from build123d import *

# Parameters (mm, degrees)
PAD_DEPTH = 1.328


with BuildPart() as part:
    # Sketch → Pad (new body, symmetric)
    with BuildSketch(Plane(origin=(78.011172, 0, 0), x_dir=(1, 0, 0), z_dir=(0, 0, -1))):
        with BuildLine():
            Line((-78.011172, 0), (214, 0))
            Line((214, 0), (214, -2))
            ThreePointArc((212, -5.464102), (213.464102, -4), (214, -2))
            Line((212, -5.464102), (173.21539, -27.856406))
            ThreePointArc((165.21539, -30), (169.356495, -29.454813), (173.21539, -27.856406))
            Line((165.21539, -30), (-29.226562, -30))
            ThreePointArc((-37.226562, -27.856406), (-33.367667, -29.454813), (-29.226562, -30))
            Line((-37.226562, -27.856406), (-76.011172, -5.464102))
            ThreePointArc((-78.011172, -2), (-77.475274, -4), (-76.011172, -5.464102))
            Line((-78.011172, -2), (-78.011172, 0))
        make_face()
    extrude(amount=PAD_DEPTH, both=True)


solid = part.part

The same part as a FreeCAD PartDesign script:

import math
import FreeCAD as App
import Part
import Sketcher
Q = App.Units.Quantity

doc = App.newDocument("Part")
body = doc.addObject("PartDesign::Body", "Body")

# Sketch on XY plane
sketch1 = body.newObject("Sketcher::SketchObject", "Sketch")
sketch1.AttachmentSupport = (doc.getObject("XY_Plane"), [""])
sketch1.MapMode = "FlatFace"
sketch1.addGeometry([
    Part.LineSegment(App.Vector(292, 0, 0), App.Vector(0, 0, 0)),  # 0
    Part.LineSegment(App.Vector(0, 0, 0), App.Vector(0, 2, 0)),  # 1
    Part.ArcOfCircle(Part.Circle(App.Vector(4, 2, 0), App.Vector(0, 0, 1), 4), math.radians(120), math.radians(180)),  # 2
    Part.LineSegment(App.Vector(2, 5.5, 0), App.Vector(40.8, 27.9, 0)),  # 3
    Part.ArcOfCircle(Part.Circle(App.Vector(48.8, 14, 0), App.Vector(0, 0, 1), 16), math.radians(90), math.radians(120)),  # 4
    Part.LineSegment(App.Vector(48.8, 30, 0), App.Vector(243.2, 30, 0)),  # 5
    Part.ArcOfCircle(Part.Circle(App.Vector(243.2, 14, 0), App.Vector(0, 0, 1), 16), math.radians(60), math.radians(90)),  # 6
    Part.LineSegment(App.Vector(251.2, 27.9, 0), App.Vector(290, 5.5, 0)),  # 7
    Part.ArcOfCircle(Part.Circle(App.Vector(288, 2, 0), App.Vector(0, 0, 1), 4), math.radians(0), math.radians(60)),  # 8
    Part.LineSegment(App.Vector(292, 2, 0), App.Vector(292, 0, 0)),  # 9
], False)
sketch1.addConstraint([
    Sketcher.Constraint("Coincident", 0, 2, 1, 1),
    Sketcher.Constraint("Tangent", 1, 2, 2, 2),
    Sketcher.Constraint("Tangent", 2, 1, 3, 1),
    Sketcher.Constraint("Tangent", 3, 2, 4, 2),
    Sketcher.Constraint("Tangent", 4, 1, 5, 1),
    Sketcher.Constraint("Tangent", 5, 2, 6, 2),
    Sketcher.Constraint("Tangent", 6, 1, 7, 1),
    Sketcher.Constraint("Tangent", 7, 2, 8, 2),
    Sketcher.Constraint("Tangent", 8, 1, 9, 1),
    Sketcher.Constraint("Coincident", 9, 2, 0, 1),
    Sketcher.Constraint("Horizontal", 0),
    Sketcher.Constraint("Vertical", 1),
    Sketcher.Constraint("Horizontal", 5),
    Sketcher.Constraint("Vertical", 9),
    Sketcher.Constraint("Coincident", 0, 2, -1, 1),
    Sketcher.Constraint("Equal", 4, 6),
    Sketcher.Constraint("Equal", 2, 8),
    Sketcher.Constraint("Horizontal", 2, 3, 8, 3),
    Sketcher.Constraint("Horizontal", 3, 2, 6, 1),
    Sketcher.Constraint("Radius", 2, Q("3.999999 mm")),
    Sketcher.Constraint("Radius", 4, Q("15.999998 mm")),
    Sketcher.Constraint("DistanceY", 1, 1, 1, 2, Q("2 mm")),
    Sketcher.Constraint("Angle", 3, Q("29.999999 deg")),
    Sketcher.Constraint("DistanceY", -1, 1, 4, 3, Q("14.000002 mm")),
    Sketcher.Constraint("DistanceX", 0, 2, 0, 1, Q("292.011172 mm")),
])
pad1 = body.newObject("PartDesign::Pad", "Pad")
pad1.Profile = sketch1
pad1.Length = 2.656
pad1.Midplane = True

doc.recompute()
